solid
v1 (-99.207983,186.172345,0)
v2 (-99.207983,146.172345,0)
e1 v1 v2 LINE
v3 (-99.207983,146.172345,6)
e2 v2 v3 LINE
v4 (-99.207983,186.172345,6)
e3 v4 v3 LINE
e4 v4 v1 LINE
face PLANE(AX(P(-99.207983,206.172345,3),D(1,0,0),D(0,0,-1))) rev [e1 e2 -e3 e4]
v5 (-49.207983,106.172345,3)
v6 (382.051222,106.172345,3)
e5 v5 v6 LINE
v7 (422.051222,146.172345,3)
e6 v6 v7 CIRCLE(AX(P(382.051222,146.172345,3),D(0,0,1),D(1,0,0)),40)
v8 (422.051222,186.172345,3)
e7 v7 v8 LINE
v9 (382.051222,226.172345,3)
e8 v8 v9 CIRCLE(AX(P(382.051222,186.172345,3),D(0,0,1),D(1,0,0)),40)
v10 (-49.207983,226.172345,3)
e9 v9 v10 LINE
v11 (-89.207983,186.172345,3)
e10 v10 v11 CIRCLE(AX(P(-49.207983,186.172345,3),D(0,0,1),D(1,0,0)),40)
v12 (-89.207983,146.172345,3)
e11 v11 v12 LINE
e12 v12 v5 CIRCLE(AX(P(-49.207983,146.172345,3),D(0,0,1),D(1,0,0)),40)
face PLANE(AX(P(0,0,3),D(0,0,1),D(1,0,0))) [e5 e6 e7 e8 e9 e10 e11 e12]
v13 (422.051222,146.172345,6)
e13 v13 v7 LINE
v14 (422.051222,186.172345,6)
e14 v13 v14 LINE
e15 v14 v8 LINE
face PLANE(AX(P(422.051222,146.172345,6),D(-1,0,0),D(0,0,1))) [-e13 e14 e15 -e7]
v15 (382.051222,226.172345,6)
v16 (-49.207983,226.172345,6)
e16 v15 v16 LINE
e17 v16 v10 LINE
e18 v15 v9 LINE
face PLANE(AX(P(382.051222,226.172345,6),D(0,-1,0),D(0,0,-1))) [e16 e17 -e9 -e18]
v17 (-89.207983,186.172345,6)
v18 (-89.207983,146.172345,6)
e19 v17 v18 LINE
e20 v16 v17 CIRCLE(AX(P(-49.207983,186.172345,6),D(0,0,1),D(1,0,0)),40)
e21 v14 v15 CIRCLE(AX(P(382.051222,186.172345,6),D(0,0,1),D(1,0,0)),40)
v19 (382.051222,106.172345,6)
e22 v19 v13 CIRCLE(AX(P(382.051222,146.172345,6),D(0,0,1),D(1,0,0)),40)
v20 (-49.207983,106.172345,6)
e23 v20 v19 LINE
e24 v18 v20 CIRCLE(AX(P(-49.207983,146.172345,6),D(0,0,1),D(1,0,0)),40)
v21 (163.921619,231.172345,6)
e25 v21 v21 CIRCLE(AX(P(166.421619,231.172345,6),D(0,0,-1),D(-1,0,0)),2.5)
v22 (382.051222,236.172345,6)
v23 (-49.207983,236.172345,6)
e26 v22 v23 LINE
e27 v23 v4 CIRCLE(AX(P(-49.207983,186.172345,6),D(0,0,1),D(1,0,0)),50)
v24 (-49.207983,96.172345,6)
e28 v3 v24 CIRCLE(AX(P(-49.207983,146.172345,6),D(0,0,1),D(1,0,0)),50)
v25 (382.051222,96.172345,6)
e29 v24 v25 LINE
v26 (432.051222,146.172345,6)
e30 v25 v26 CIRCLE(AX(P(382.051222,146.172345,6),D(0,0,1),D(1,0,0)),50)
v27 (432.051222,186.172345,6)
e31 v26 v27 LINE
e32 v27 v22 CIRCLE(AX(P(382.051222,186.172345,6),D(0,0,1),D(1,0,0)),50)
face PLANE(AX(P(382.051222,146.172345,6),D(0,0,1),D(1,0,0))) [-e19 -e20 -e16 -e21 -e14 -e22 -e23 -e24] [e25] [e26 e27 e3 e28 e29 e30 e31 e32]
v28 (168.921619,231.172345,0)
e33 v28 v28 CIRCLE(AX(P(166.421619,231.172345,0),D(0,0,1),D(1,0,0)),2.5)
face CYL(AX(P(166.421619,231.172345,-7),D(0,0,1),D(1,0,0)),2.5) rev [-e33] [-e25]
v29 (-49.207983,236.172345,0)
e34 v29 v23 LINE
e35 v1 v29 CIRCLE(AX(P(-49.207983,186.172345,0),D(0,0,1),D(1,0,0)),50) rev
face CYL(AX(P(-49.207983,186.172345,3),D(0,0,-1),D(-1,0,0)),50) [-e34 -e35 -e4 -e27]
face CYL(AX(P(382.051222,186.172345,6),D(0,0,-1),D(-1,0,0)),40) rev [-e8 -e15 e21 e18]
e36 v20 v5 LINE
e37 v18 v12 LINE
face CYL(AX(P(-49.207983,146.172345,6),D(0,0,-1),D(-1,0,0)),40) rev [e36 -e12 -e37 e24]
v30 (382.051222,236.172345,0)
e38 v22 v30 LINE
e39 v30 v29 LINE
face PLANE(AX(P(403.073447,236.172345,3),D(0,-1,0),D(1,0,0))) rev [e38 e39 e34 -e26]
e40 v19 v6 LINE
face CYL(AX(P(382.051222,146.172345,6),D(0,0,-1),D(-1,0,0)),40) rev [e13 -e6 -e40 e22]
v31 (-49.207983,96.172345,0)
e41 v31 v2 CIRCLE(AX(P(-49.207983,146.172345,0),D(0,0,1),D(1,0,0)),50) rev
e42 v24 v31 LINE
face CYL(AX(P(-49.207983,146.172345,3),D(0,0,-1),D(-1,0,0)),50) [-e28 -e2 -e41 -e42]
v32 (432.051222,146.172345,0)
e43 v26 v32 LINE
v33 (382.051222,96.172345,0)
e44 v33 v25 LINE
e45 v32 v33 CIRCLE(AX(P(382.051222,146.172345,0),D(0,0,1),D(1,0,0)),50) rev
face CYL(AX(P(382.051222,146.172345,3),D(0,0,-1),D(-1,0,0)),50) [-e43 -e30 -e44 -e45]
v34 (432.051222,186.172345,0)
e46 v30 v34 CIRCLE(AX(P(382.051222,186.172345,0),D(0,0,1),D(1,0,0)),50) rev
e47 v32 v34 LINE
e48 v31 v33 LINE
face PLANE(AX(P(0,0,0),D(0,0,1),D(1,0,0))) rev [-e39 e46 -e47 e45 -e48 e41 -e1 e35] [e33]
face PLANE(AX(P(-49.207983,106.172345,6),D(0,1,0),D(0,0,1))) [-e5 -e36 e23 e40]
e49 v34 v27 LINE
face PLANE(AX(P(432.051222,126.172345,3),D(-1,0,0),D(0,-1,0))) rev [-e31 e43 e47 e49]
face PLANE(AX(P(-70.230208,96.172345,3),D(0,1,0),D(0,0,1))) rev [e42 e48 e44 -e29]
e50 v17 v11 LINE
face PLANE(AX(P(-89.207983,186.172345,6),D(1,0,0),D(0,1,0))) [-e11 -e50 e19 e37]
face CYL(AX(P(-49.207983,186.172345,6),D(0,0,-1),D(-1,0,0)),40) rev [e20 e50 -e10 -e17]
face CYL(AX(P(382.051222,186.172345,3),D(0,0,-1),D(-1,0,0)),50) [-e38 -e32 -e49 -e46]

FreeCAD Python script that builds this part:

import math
import FreeCAD as App
import Part
import Sketcher


def edges_at(feature, points):
    """Names of the edges that pass closest to the given points."""
    edges = feature.Shape.Edges
    near = lambda p: min(range(len(edges)), key=lambda i: edges[i].distToShape(Part.Vertex(*p))[0])
    return sorted({f"Edge{near(p) + 1}" for p in points})

doc = App.newDocument("Part")
body = doc.addObject("PartDesign::Body", "Body")

# Sketch on XY plane
sketch1 = body.newObject("Sketcher::SketchObject", "Sketch")
sketch1.AttachmentSupport = (doc.getObject("XY_Plane"), [""])
sketch1.MapMode = "FlatFace"
sketch1.addGeometry([
    Part.LineSegment(App.Vector(432.051222, 126.172345, 0), App.Vector(432.051222, 206.172345, 0)),  # 0
    Part.LineSegment(App.Vector(432.051222, 206.172345, 0), App.Vector(431.494422, 212.025054, 0)),  # 1
    Part.LineSegment(App.Vector(431.494422, 212.025054, 0), App.Vector(429.84542, 217.652848, 0)),  # 2
    Part.LineSegment(App.Vector(429.84542, 217.652848, 0), App.Vector(427.167586, 222.839452, 0)),  # 3
    Part.LineSegment(App.Vector(427.167586, 222.839452, 0), App.Vector(423.563828, 227.385548, 0)),  # 4
    Part.LineSegment(App.Vector(423.563828, 227.385548, 0), App.Vector(419.172636, 231.116433, 0)),  # 5
    Part.LineSegment(App.Vector(419.172636, 231.116433, 0), App.Vector(414.162761, 233.888731, 0)),  # 6
    Part.LineSegment(App.Vector(414.162761, 233.888731, 0), App.Vector(408.72673, 235.595903, 0)),  # 7
    Part.LineSegment(App.Vector(408.72673, 235.595903, 0), App.Vector(403.073447, 236.172345, 0)),  # 8
    Part.LineSegment(App.Vector(403.073447, 236.172345, 0), App.Vector(-70.230208, 236.172345, 0)),  # 9
    Part.LineSegment(App.Vector(-70.230208, 236.172345, 0), App.Vector(-75.883492, 235.595903, 0)),  # 10
    Part.LineSegment(App.Vector(-75.883492, 235.595903, 0), App.Vector(-81.319522, 233.888731, 0)),  # 11
    Part.LineSegment(App.Vector(-81.319522, 233.888731, 0), App.Vector(-86.329397, 231.116433, 0)),  # 12
    Part.LineSegment(App.Vector(-86.329397, 231.116433, 0), App.Vector(-90.720589, 227.385548, 0)),  # 13
    Part.LineSegment(App.Vector(-90.720589, 227.385548, 0), App.Vector(-94.324347, 222.839452, 0)),  # 14
    Part.LineSegment(App.Vector(-94.324347, 222.839452, 0), App.Vector(-97.002181, 217.652848, 0)),  # 15
    Part.LineSegment(App.Vector(-97.002181, 217.652848, 0), App.Vector(-98.651183, 212.025054, 0)),  # 16
    Part.LineSegment(App.Vector(-98.651183, 212.025054, 0), App.Vector(-99.207983, 206.172345, 0)),  # 17
    Part.LineSegment(App.Vector(-99.207983, 206.172345, 0), App.Vector(-99.207983, 126.172345, 0)),  # 18
    Part.LineSegment(App.Vector(-99.207983, 126.172345, 0), App.Vector(-98.651183, 120.319635, 0)),  # 19
    Part.LineSegment(App.Vector(-98.651183, 120.319635, 0), App.Vector(-97.002181, 114.691842, 0)),  # 20
    Part.LineSegment(App.Vector(-97.002181, 114.691842, 0), App.Vector(-94.324347, 109.505238, 0)),  # 21
    Part.LineSegment(App.Vector(-94.324347, 109.505238, 0), App.Vector(-90.720589, 104.959141, 0)),  # 22
    Part.LineSegment(App.Vector(-90.720589, 104.959141, 0), App.Vector(-86.329397, 101.228256, 0)),  # 23
    Part.LineSegment(App.Vector(-86.329397, 101.228256, 0), App.Vector(-81.319522, 98.455959, 0)),  # 24
    Part.LineSegment(App.Vector(-81.319522, 98.455959, 0), App.Vector(-75.883492, 96.748786, 0)),  # 25
    Part.LineSegment(App.Vector(-75.883492, 96.748786, 0), App.Vector(-70.230208, 96.172345, 0)),  # 26
    Part.LineSegment(App.Vector(-70.230208, 96.172345, 0), App.Vector(403.073447, 96.172345, 0)),  # 27
    Part.LineSegment(App.Vector(403.073447, 96.172345, 0), App.Vector(408.72673, 96.748786, 0)),  # 28
    Part.LineSegment(App.Vector(408.72673, 96.748786, 0), App.Vector(414.162761, 98.455959, 0)),  # 29
    Part.LineSegment(App.Vector(414.162761, 98.455959, 0), App.Vector(419.172636, 101.228256, 0)),  # 30
    Part.LineSegment(App.Vector(419.172636, 101.228256, 0), App.Vector(423.563828, 104.959141, 0)),  # 31
    Part.LineSegment(App.Vector(423.563828, 104.959141, 0), App.Vector(427.167586, 109.505238, 0)),  # 32
    Part.LineSegment(App.Vector(427.167586, 109.505238, 0), App.Vector(429.84542, 114.691842, 0)),  # 33
    Part.LineSegment(App.Vector(429.84542, 114.691842, 0), App.Vector(431.494422, 120.319635, 0)),  # 34
    Part.LineSegment(App.Vector(431.494422, 120.319635, 0), App.Vector(432.051222, 126.172345, 0)),  # 35
], False)
sketch1.addConstraint([
    Sketcher.Constraint("Coincident", 0, 2, 1, 1),
    Sketcher.Constraint("Coincident", 1, 2, 2, 1),
    Sketcher.Constraint("Coincident", 2, 2, 3, 1),
    Sketcher.Constraint("Coincident", 3, 2, 4, 1),
    Sketcher.Constraint("Coincident", 4, 2, 5, 1),
    Sketcher.Constraint("Coincident", 5, 2, 6, 1),
    Sketcher.Constraint("Coincident", 6, 2, 7, 1),
    Sketcher.Constraint("Coincident", 7, 2, 8, 1),
    Sketcher.Constraint("Coincident", 8, 2, 9, 1),
    Sketcher.Constraint("Coincident", 9, 2, 10, 1),
    Sketcher.Constraint("Coincident", 10, 2, 11, 1),
    Sketcher.Constraint("Coincident", 11, 2, 12, 1),
    Sketcher.Constraint("Coincident", 12, 2, 13, 1),
    Sketcher.Constraint("Coincident", 13, 2, 14, 1),
    Sketcher.Constraint("Coincident", 14, 2, 15, 1),
    Sketcher.Constraint("Coincident", 15, 2, 16, 1),
    Sketcher.Constraint("Coincident", 16, 2, 17, 1),
    Sketcher.Constraint("Coincident", 17, 2, 18, 1),
    Sketcher.Constraint("Coincident", 18, 2, 19, 1),
    Sketcher.Constraint("Coincident", 19, 2, 20, 1),
    Sketcher.Constraint("Coincident", 20, 2, 21, 1),
    Sketcher.Constraint("Coincident", 21, 2, 22, 1),
    Sketcher.Constraint("Coincident", 22, 2, 23, 1),
    Sketcher.Constraint("Coincident", 23, 2, 24, 1),
    Sketcher.Constraint("Coincident", 24, 2, 25, 1),
    Sketcher.Constraint("Coincident", 25, 2, 26, 1),
    Sketcher.Constraint("Coincident", 26, 2, 27, 1),
    Sketcher.Constraint("Coincident", 27, 2, 28, 1),
    Sketcher.Constraint("Coincident", 28, 2, 29, 1),
    Sketcher.Constraint("Coincident", 29, 2, 30, 1),
    Sketcher.Constraint("Coincident", 30, 2, 31, 1),
    Sketcher.Constraint("Coincident", 31, 2, 32, 1),
    Sketcher.Constraint("Coincident", 32, 2, 33, 1),
    Sketcher.Constraint("Coincident", 33, 2, 34, 1),
    Sketcher.Constraint("Coincident", 34, 2, 35, 1),
    Sketcher.Constraint("Coincident", 35, 2, 0, 1),
    Sketcher.Constraint("Vertical", 0),
    Sketcher.Constraint("Horizontal", 9),
    Sketcher.Constraint("Vertical", 18),
    Sketcher.Constraint("Horizontal", 27),
    Sketcher.Constraint("Parallel", 1, 19),
    Sketcher.Constraint("Parallel", 2, 20),
    Sketcher.Constraint("Parallel", 3, 21),
    Sketcher.Constraint("Parallel", 4, 22),
    Sketcher.Constraint("Parallel", 5, 23),
    Sketcher.Constraint("Parallel", 6, 24),
    Sketcher.Constraint("Parallel", 7, 25),
    Sketcher.Constraint("Parallel", 8, 26),
    Sketcher.Constraint("Parallel", 10, 28),
    Sketcher.Constraint("Parallel", 11, 29),
    Sketcher.Constraint("Parallel", 12, 30),
    Sketcher.Constraint("Parallel", 13, 31),
    Sketcher.Constraint("Parallel", 14, 32),
    Sketcher.Constraint("Parallel", 15, 33),
    Sketcher.Constraint("Parallel", 16, 34),
    Sketcher.Constraint("Parallel", 17, 35),
    Sketcher.Constraint("Horizontal", 7, 2, 10, 2),
    Sketcher.Constraint("Horizontal", 6, 2, 11, 2),
    Sketcher.Constraint("Horizontal", 5, 2, 12, 2),
    Sketcher.Constraint("Horizontal", 4, 2, 13, 2),
    Sketcher.Constraint("Horizontal", 3, 2, 14, 2),
    Sketcher.Constraint("Horizontal", 2, 2, 15, 2),
    Sketcher.Constraint("Horizontal", 1, 2, 16, 2),
    Sketcher.Constraint("Horizontal", 0, 2, 17, 2),
    Sketcher.Constraint("Horizontal", 25, 2, 28, 2),
    Sketcher.Constraint("Horizontal", 24, 2, 29, 2),
    Sketcher.Constraint("Horizontal", 23, 2, 30, 2),
    Sketcher.Constraint("Horizontal", 22, 2, 31, 2),
    Sketcher.Constraint("Horizontal", 21, 2, 32, 2),
    Sketcher.Constraint("Horizontal", 20, 2, 33, 2),
    Sketcher.Constraint("Horizontal", 19, 2, 34, 2),
    Sketcher.Constraint("Horizontal", 18, 2, 35, 2),
    Sketcher.Constraint("Vertical", 16, 2, 19, 2),
    Sketcher.Constraint("Vertical", 15, 2, 20, 2),
    Sketcher.Constraint("Vertical", 14, 2, 21, 2),
    Sketcher.Constraint("Vertical", 13, 2, 22, 2),
    Sketcher.Constraint("Vertical", 12, 2, 23, 2),
    Sketcher.Constraint("Vertical", 11, 2, 24, 2),
    Sketcher.Constraint("Vertical", 10, 2, 25, 2),
    Sketcher.Constraint("Vertical", 9, 2, 26, 2),
    Sketcher.Constraint("Vertical", 8, 2, 27, 2),
    Sketcher.Constraint("Vertical", 7, 2, 28, 2),
    Sketcher.Constraint("Vertical", 6, 2, 29, 2),
    Sketcher.Constraint("Vertical", 5, 2, 30, 2),
    Sketcher.Constraint("Vertical", 4, 2, 31, 2),
    Sketcher.Constraint("Vertical", 3, 2, 32, 2),
    Sketcher.Constraint("Vertical", 2, 2, 33, 2),
    Sketcher.Constraint("Vertical", 1, 2, 34, 2),
    Sketcher.Constraint("DistanceY", 0, 1, 0, 2, 80.0),
    Sketcher.Constraint("DistanceY", 27, 2, 0, 2, 110.0),
    Sketcher.Constraint("DistanceX", 2, 2, 1, 2, 1.649002),
    Sketcher.Constraint("DistanceX", 1, 2, 0, 2, 0.5568),
    Sketcher.Constraint("DistanceY", 2, 2, 4, 2, 9.7327),
    Sketcher.Constraint("DistanceY", 30, 2, 1, 2, 110.796798),
    Sketcher.Constraint("DistanceX", 9, 2, 9, 1, 473.303655),
    Sketcher.Constraint("DistanceX", -1, 1, 0, 2, 432.051222),
    Sketcher.Constraint("DistanceY", -1, 1, 3, 2, 222.839452),
    Sketcher.Constraint("DistanceY", -1, 1, 4, 2, 227.385548),
    Sketcher.Constraint("DistanceX", -1, 1, 6, 2, 414.162761),
    Sketcher.Constraint("DistanceY", -1, 1, 6, 2, 233.888731),
    Sketcher.Constraint("DistanceX", -1, 1, 7, 2, 408.72673),
    Sketcher.Constraint("DistanceX", 9, 2, -1, 1, 70.230208),
    Sketcher.Constraint("DistanceX", 13, 2, -1, 1, 90.720589),
    Sketcher.Constraint("DistanceY", -1, 1, 20, 2, 114.691842),
    Sketcher.Constraint("DistanceY", 0, 2, 1, 2, 5.85271),
    Sketcher.Constraint("DistanceX", 4, 2, 3, 2, 3.603758),
    Sketcher.Constraint("DistanceX", 5, 2, 4, 2, 4.391192),
    Sketcher.Constraint("DistanceY", 5, 2, 7, 2, 4.47947),
])
pad1 = body.newObject("PartDesign::Pad", "Pad")
pad1.Profile = sketch1
pad1.Length = 3

# Sketch on XY plane
sketch2 = body.newObject("Sketcher::SketchObject", "Sketch001")
sketch2.AttachmentSupport = (doc.getObject("XY_Plane"), [""])
sketch2.MapMode = "FlatFace"
sketch2.addGeometry([
    Part.LineSegment(App.Vector(432.051222, 236.172345, 0), App.Vector(432.051222, 96.172345, 0)),  # 0
    Part.LineSegment(App.Vector(432.051222, 96.172345, 0), App.Vector(379.507987, 96.172345, 0)),  # 1
    Part.LineSegment(App.Vector(379.507987, 96.172345, 0), App.Vector(379.507987, 236.172345, 0)),  # 2
    Part.LineSegment(App.Vector(379.507987, 236.172345, 0), App.Vector(432.051222, 236.172345, 0)),  # 3
    Part.LineSegment(App.Vector(12.068197, 236.172345, 0), App.Vector(12.068197, 96.172345, 0)),  # 4
    Part.LineSegment(App.Vector(12.068197, 96.172345, 0), App.Vector(-99.207983, 96.172345, 0)),  # 5
    Part.LineSegment(App.Vector(-99.207983, 96.172345, 0), App.Vector(-99.207983, 236.172345, 0)),  # 6
    Part.LineSegment(App.Vector(-99.207983, 236.172345, 0), App.Vector(12.068197, 236.172345, 0)),  # 7
], False)
sketch2.addConstraint([
    Sketcher.Constraint("Coincident", 0, 2, 1, 1),
    Sketcher.Constraint("Coincident", 1, 2, 2, 1),
    Sketcher.Constraint("Coincident", 2, 2, 3, 1),
    Sketcher.Constraint("Coincident", 3, 2, 0, 1),
    Sketcher.Constraint("Coincident", 4, 2, 5, 1),
    Sketcher.Constraint("Coincident", 5, 2, 6, 1),
    Sketcher.Constraint("Coincident", 6, 2, 7, 1),
    Sketcher.Constraint("Coincident", 7, 2, 4, 1),
    Sketcher.Constraint("Vertical", 0),
    Sketcher.Constraint("Horizontal", 1),
    Sketcher.Constraint("Vertical", 2),
    Sketcher.Constraint("Horizontal", 3),
    Sketcher.Constraint("Vertical", 4),
    Sketcher.Constraint("Horizontal", 5),
    Sketcher.Constraint("Vertical", 6),
    Sketcher.Constraint("Horizontal", 7),
    Sketcher.Constraint("Horizontal", 1, 2, 4, 2),
    Sketcher.Constraint("Horizontal", 3, 2, 6, 2),
    Sketcher.Constraint("DistanceY", 0, 2, 0, 1, 140.0),
    Sketcher.Constraint("DistanceX", 5, 2, 5, 1, 111.27618),
    Sketcher.Constraint("DistanceX", 1, 2, 1, 1, 52.543234),
    Sketcher.Constraint("DistanceX", -1, 1, 0, 2, 432.051222),
    Sketcher.Constraint("DistanceX", 4, 2, 1, 2, 367.439791),
    Sketcher.Constraint("DistanceY", -1, 1, 0, 2, 96.172345),
])
pad2 = body.newObject("PartDesign::Pad", "Pad001")
pad2.Profile = sketch2
pad2.Length = 3
doc.recompute()

fillet = body.newObject("PartDesign::Fillet", "Fillet")
fillet.Base = (pad2, edges_at(pad2, [(432.051, 96.172, 1.5), (-99.208, 236.172, 1.5), (-99.208, 96.172, 1.5)]))
fillet.Radius = 50
doc.recompute()

fillet2 = body.newObject("PartDesign::Fillet", "Fillet001")
fillet2.Base = (fillet, edges_at(fillet, [(432.051, 236.172, 1.5)]))
fillet2.Radius = 50

# Sketch on XY plane
sketch3 = body.newObject("Sketcher::SketchObject", "Sketch002")
sketch3.AttachmentSupport = (doc.getObject("XY_Plane"), [""])
sketch3.MapMode = "FlatFace"
sketch3.AttachmentOffset = App.Placement(App.Vector(0, 0, 3), App.Rotation())
sketch3.addGeometry(Part.Circle(App.Vector(166.421619, 231.172345, 0), App.Vector(0, 0, 1), 2.5), False)
sketch3.addConstraint([
    Sketcher.Constraint("Diameter", 0, 5.0),
    Sketcher.Constraint("DistanceX", -1, 1, 0, 3, 166.421619),
    Sketcher.Constraint("DistanceY", -1, 1, 0, 3, 231.172345),
])
pocket1 = body.newObject("PartDesign::Pocket", "Pocket")
pocket1.Profile = sketch3
pocket1.Length = 10

# Sketch on XY plane
sketch4 = body.newObject("Sketcher::SketchObject", "Sketch003")
sketch4.AttachmentSupport = (doc.getObject("XY_Plane"), [""])
sketch4.MapMode = "FlatFace"
sketch4.AttachmentOffset = App.Placement(App.Vector(0, 0, 3), App.Rotation())
sketch4.addGeometry([
    Part.LineSegment(App.Vector(432.051222, 146.172345, 0), App.Vector(432.051222, 186.172345, 0)),  # 0
    Part.ArcOfCircle(Part.Circle(App.Vector(382.051222, 186.172345, 0), App.Vector(0, 0, 1), 50), math.radians(0), math.radians(90)),  # 1
    Part.LineSegment(App.Vector(382.051222, 236.172345, 0), App.Vector(-49.207983, 236.172345, 0)),  # 2
    Part.ArcOfCircle(Part.Circle(App.Vector(-49.207983, 186.172345, 0), App.Vector(0, 0, 1), 50), math.radians(90), math.radians(180)),  # 3
    Part.LineSegment(App.Vector(-99.207983, 186.172345, 0), App.Vector(-99.207983, 146.172345, 0)),  # 4
    Part.ArcOfCircle(Part.Circle(App.Vector(-49.207983, 146.172345, 0), App.Vector(0, 0, 1), 50), math.radians(180), math.radians(270)),  # 5
    Part.LineSegment(App.Vector(-49.207983, 96.172345, 0), App.Vector(382.051222, 96.172345, 0)),  # 6
    Part.ArcOfCircle(Part.Circle(App.Vector(382.051222, 146.172345, 0), App.Vector(0, 0, 1), 50), math.radians(-90), math.radians(0)),  # 7
    Part.LineSegment(App.Vector(-89.207983, 146.172345, 0), App.Vector(-89.207983, 186.172345, 0)),  # 8
    Part.ArcOfCircle(Part.Circle(App.Vector(-49.207983, 186.172345, 0), App.Vector(0, 0, 1), 40), math.radians(90), math.radians(180)),  # 9
    Part.LineSegment(App.Vector(-49.207983, 226.172345, 0), App.Vector(382.051222, 226.172345, 0)),  # 10
    Part.ArcOfCircle(Part.Circle(App.Vector(382.051222, 186.172345, 0), App.Vector(0, 0, 1), 40), math.radians(0), math.radians(90)),  # 11
    Part.LineSegment(App.Vector(422.051222, 186.172345, 0), App.Vector(422.051222, 146.172345, 0)),  # 12
    Part.ArcOfCircle(Part.Circle(App.Vector(382.051222, 146.172345, 0), App.Vector(0, 0, 1), 40), math.radians(-90), math.radians(0)),  # 13
    Part.LineSegment(App.Vector(382.051222, 106.172345, 0), App.Vector(-49.207983, 106.172345, 0)),  # 14
    Part.ArcOfCircle(Part.Circle(App.Vector(-49.207983, 146.172345, 0), App.Vector(0, 0, 1), 40), math.radians(180), math.radians(270)),  # 15
], False)
sketch4.addConstraint([
    Sketcher.Constraint("Tangent", 0, 2, 1, 1),
    Sketcher.Constraint("Tangent", 1, 2, 2, 1),
    Sketcher.Constraint("Tangent", 2, 2, 3, 1),
    Sketcher.Constraint("Tangent", 3, 2, 4, 1),
    Sketcher.Constraint("Tangent", 4, 2, 5, 1),
    Sketcher.Constraint("Tangent", 5, 2, 6, 1),
    Sketcher.Constraint("Tangent", 6, 2, 7, 1),
    Sketcher.Constraint("Tangent", 7, 2, 0, 1),
    Sketcher.Constraint("Tangent", 8, 2, 9, 2),
    Sketcher.Constraint("Tangent", 9, 1, 10, 1),
    Sketcher.Constraint("Tangent", 10, 2, 11, 2),
    Sketcher.Constraint("Tangent", 11, 1, 12, 1),
    Sketcher.Constraint("Tangent", 12, 2, 13, 2),
    Sketcher.Constraint("Tangent", 13, 1, 14, 1),
    Sketcher.Constraint("Tangent", 14, 2, 15, 2),
    Sketcher.Constraint("Tangent", 15, 1, 8, 1),
    Sketcher.Constraint("Vertical", 0),
    Sketcher.Constraint("Horizontal", 2),
    Sketcher.Constraint("Vertical", 4),
    Sketcher.Constraint("Horizontal", 6),
    Sketcher.Constraint("Vertical", 8),
    Sketcher.Constraint("Horizontal", 10),
    Sketcher.Constraint("Vertical", 12),
    Sketcher.Constraint("Horizontal", 14),
    Sketcher.Constraint("Coincident", 9, 3, 3, 3),
    Sketcher.Constraint("Coincident", 11, 3, 1, 3),
    Sketcher.Constraint("Coincident", 13, 3, 7, 3),
    Sketcher.Constraint("Equal", 1, 3),
    Sketcher.Constraint("Equal", 3, 5),
    Sketcher.Constraint("Equal", 5, 7),
    Sketcher.Constraint("Equal", 13, 15),
    Sketcher.Constraint("Radius", 1, 50.0),
    Sketcher.Constraint("Radius", 9, 40.0),
    Sketcher.Constraint("DistanceY", 0, 1, 0, 2, 40.0),
    Sketcher.Constraint("DistanceX", 2, 2, 2, 1, 431.259204),
    Sketcher.Constraint("DistanceX", -1, 1, 1, 3, 382.051222),
    Sketcher.Constraint("DistanceY", -1, 1, 1, 3, 186.172345),
])
pad3 = body.newObject("PartDesign::Pad", "Pad002")
pad3.Profile = sketch4
pad3.Length = 3

# Sketch on XY plane
sketch5 = body.newObject("Sketcher::SketchObject", "Sketch004")
sketch5.AttachmentSupport = (doc.getObject("XY_Plane"), [""])
sketch5.MapMode = "FlatFace"
sketch5.addGeometry(Part.Circle(App.Vector(166.421619, 231.172345, 0), App.Vector(0, 0, 1), 2.5), False)
sketch5.addConstraint([
    Sketcher.Constraint("Diameter", 0, 5.0),
    Sketcher.Constraint("DistanceX", -1, 1, 0, 3, 166.421619),
    Sketcher.Constraint("DistanceY", -1, 1, 0, 3, 231.172345),
])
pocket2 = body.newObject("PartDesign::Pocket", "Pocket001")
pocket2.Profile = sketch5
pocket2.Type = "ThroughAll"
pocket2.Reversed = True

doc.recompute()
